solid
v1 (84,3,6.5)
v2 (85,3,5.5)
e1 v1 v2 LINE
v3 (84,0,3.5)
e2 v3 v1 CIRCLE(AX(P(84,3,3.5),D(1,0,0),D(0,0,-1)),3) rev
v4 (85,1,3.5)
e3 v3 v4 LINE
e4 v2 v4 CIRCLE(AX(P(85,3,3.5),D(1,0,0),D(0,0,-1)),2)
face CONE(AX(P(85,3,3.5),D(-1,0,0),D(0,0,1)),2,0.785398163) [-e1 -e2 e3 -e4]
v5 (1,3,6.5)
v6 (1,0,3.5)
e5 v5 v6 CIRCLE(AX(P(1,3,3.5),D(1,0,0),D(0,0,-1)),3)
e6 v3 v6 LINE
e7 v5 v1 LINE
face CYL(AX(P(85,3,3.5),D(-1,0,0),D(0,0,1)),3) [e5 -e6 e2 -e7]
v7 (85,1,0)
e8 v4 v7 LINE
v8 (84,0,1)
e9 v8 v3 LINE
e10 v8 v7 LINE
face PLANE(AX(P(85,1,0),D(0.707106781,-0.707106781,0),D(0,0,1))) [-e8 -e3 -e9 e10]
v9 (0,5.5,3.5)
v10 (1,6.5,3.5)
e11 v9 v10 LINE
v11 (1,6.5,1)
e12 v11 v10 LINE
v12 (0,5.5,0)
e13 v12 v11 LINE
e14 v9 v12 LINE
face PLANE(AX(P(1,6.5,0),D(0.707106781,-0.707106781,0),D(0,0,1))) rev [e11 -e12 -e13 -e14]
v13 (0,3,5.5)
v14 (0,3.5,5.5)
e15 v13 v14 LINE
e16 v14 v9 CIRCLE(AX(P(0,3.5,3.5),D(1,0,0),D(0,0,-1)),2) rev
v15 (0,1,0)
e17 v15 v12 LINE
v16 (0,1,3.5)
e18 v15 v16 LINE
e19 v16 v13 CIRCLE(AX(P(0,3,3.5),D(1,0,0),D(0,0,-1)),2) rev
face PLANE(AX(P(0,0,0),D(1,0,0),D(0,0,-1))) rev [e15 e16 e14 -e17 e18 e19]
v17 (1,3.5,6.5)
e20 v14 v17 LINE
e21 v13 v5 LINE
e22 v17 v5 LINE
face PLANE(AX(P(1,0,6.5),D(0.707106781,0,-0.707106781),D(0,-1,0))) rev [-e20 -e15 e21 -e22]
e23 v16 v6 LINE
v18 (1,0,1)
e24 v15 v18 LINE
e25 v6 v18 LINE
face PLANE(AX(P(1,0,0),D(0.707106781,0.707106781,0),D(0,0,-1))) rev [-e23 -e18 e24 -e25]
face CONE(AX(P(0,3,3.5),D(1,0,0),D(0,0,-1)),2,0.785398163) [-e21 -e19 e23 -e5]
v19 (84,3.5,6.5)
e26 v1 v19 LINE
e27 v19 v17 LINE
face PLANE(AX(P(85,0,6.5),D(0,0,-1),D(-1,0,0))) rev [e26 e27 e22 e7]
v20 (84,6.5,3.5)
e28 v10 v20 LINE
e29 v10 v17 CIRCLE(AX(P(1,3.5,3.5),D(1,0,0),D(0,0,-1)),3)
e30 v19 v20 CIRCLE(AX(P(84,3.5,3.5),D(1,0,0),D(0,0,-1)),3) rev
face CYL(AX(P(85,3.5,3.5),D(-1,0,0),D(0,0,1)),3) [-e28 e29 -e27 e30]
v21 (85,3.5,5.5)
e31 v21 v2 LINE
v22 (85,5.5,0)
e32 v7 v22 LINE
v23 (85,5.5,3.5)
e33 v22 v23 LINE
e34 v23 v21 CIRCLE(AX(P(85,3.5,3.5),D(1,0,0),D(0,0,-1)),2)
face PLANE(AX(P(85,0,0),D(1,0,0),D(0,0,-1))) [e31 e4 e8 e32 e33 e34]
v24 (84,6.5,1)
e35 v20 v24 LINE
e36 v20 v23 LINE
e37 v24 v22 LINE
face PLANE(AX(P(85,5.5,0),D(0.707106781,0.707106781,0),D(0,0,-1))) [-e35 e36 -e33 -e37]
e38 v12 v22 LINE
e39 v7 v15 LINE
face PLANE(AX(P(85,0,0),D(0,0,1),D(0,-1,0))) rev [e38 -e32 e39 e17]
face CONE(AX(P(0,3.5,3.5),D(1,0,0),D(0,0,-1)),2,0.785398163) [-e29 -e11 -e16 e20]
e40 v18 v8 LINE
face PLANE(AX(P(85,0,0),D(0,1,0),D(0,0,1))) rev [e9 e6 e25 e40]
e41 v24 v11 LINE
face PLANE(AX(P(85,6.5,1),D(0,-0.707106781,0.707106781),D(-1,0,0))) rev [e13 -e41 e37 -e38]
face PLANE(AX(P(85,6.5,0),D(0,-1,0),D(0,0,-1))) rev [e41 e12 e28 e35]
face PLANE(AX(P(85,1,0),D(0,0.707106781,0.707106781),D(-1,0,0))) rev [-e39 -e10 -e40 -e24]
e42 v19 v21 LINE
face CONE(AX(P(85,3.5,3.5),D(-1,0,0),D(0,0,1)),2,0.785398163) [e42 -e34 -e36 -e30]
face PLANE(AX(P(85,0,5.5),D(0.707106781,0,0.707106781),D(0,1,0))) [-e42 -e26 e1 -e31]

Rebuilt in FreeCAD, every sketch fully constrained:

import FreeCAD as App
import Part
import Sketcher
from FreeCAD import Vector


def edges_at(feature, points):
    """Names of the edges that pass closest to the given points."""
    edges = feature.Shape.Edges
    near = lambda p: min(range(len(edges)), key=lambda i: edges[i].distToShape(Part.Vertex(*p))[0])
    return sorted({f"Edge{near(p) + 1}" for p in points})


def add_polygon(sketch, points):
    """Adds a closed chain of lines whose ends are joined by coincident constraints."""
    first, n = sketch.GeometryCount, len(points)
    for a, b in zip(points, points[1:] + points[:1]):
        sketch.addGeometry(Part.LineSegment(App.Vector(*a, 0), App.Vector(*b, 0)), False)
    for i in range(n):
        sketch.addConstraint(Sketcher.Constraint("Coincident", first + i, 2, first + (i + 1) % n, 1))

doc = App.newDocument("Part")
body = doc.addObject("PartDesign::Body", "Body")

sketch1 = doc.addObject("Sketcher::SketchObject", "Sketch")
body.addObject(sketch1)
sketch1.AttachmentSupport = (doc.YZ_Plane, [""])
sketch1.MapMode = "FlatFace"
add_polygon(sketch1, [(6, 6), (0, 6), (0, 0), (6, 0)])
sketch1.addConstraint(Sketcher.Constraint("Horizontal", 0))
sketch1.addConstraint(Sketcher.Constraint("Vertical", 1))
sketch1.addConstraint(Sketcher.Constraint("Horizontal", 2))
sketch1.addConstraint(Sketcher.Constraint("Vertical", 3))
sketch1.addConstraint(Sketcher.Constraint("Coincident", 1, 2, -1, 1))
sketch1.addConstraint(Sketcher.Constraint("Equal", 2, 1))
sketch1.addConstraint(Sketcher.Constraint("DistanceX", 0, 2, 0, 1, 6.5))
pad1 = doc.addObject("PartDesign::Pad", "Pad")
body.addObject(pad1)
pad1.Profile = sketch1
pad1.Length = 85
doc.recompute()

fillet = doc.addObject("PartDesign::Fillet", "Fillet")
body.addObject(fillet)
fillet.Base = (pad1, edges_at(pad1, [(42.5, 0, 6.5), (42.5, 6.5, 6.5)]))
fillet.Radius = 3
doc.recompute()

chamfer = doc.addObject("PartDesign::Chamfer", "Chamfer")
body.addObject(chamfer)
chamfer.Base = (fillet, edges_at(fillet, [
    (0, 0, 1.75),
    (85, 0, 1.75),
    (0, 3.25, 6.5),
    (0, 5.621, 5.621),
    (0, 0.879, 5.621),
    (85, 3.25, 6.5),
    (85, 5.621, 5.621),
    (85, 0.879, 5.621),
    (0, 6.5, 1.75),
    (85, 6.5, 1.75),
    (42.5, 0, 0),
    (42.5, 6.5, 0),
]))
chamfer.Size = 1

doc.recompute()
